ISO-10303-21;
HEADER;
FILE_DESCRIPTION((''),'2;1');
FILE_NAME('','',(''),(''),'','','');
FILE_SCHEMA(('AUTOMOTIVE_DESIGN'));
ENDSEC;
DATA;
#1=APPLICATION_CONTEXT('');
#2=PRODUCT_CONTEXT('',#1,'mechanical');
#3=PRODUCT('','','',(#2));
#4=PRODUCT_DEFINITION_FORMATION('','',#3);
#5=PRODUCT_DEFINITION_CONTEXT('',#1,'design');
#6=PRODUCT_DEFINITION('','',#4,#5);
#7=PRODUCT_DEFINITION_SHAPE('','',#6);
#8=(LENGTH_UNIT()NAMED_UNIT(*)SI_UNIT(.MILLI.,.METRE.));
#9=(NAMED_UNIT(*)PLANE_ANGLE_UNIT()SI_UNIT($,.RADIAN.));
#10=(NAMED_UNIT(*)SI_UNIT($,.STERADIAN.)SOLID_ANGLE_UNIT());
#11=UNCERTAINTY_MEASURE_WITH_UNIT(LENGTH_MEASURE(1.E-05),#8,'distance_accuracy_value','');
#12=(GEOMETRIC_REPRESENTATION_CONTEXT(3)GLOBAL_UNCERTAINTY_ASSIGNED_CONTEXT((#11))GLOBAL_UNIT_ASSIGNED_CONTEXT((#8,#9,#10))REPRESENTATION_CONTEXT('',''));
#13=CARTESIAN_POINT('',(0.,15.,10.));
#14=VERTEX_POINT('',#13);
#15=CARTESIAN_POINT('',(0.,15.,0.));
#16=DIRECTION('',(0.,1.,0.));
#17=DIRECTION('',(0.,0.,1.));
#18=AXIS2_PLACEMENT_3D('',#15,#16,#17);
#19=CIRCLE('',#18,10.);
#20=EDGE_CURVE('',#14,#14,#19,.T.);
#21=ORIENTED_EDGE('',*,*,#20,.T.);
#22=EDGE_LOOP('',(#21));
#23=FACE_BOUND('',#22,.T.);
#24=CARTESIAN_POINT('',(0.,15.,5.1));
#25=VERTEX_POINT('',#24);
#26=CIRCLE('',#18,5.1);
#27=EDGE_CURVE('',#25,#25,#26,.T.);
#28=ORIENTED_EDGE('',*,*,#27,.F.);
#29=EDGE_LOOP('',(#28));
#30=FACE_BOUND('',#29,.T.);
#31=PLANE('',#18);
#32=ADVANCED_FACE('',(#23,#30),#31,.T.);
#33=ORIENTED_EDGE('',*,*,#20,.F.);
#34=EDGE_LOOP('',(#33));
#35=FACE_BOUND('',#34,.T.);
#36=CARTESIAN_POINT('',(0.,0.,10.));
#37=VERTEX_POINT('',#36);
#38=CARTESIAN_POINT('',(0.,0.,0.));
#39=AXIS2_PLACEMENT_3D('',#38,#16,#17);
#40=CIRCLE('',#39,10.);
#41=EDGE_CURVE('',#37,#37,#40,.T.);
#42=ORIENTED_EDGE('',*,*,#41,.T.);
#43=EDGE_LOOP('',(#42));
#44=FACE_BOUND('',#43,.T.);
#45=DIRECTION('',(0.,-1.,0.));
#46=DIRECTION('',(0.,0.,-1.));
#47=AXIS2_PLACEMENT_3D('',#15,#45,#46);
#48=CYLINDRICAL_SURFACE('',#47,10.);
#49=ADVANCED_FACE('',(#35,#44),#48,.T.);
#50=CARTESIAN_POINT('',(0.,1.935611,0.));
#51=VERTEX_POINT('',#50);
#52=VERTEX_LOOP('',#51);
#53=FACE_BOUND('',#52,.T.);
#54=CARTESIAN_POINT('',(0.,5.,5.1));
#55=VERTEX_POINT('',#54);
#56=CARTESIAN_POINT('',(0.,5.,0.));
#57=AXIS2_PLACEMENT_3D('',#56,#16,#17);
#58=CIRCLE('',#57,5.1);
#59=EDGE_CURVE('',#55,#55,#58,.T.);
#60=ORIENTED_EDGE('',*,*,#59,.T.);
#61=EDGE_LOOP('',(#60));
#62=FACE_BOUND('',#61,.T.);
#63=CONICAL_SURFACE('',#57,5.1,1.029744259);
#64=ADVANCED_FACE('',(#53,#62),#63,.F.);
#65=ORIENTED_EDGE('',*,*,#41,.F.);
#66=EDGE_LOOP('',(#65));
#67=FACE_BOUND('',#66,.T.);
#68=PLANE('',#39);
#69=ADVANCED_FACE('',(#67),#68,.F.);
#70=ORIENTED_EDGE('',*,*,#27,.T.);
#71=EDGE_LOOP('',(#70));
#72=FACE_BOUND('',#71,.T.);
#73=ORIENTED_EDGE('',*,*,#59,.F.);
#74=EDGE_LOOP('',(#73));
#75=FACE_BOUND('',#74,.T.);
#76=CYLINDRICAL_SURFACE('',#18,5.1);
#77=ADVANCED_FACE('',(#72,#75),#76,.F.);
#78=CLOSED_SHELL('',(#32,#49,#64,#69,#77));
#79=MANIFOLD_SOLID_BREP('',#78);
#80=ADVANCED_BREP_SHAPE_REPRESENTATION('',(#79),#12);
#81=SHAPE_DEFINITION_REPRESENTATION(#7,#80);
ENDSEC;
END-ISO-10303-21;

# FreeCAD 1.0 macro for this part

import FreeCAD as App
import Part
import Sketcher

V = App.Vector
Q = App.Units.Quantity

doc = App.newDocument("Part")
body = doc.addObject("PartDesign::Body", "Body")

sketch1 = body.newObject("Sketcher::SketchObject", "Sketch")
sketch1.AttachmentSupport = (doc.getObject("XZ_Plane"), [""])
sketch1.MapMode = "FlatFace"
sketch1.addGeometry(Part.Circle(V(0, 0, 0), V(0, 0, 1), 10), False)
sketch1.addConstraint(Sketcher.Constraint("Coincident", 0, 3, -1, 1))
sketch1.addConstraint(Sketcher.Constraint("Diameter", 0, Q("20 mm")))
pad1 = body.newObject("PartDesign::Pad", "Pad")
pad1.Profile = sketch1
pad1.Length = 15
pad1.Reversed = True

sketch2 = body.newObject("Sketcher::SketchObject", "Sketch001")
sketch2.AttachmentSupport = (doc.getObject("XZ_Plane"), [""])
sketch2.MapMode = "FlatFace"
sketch2.AttachmentOffset = App.Placement(V(0, 0, -15), App.Rotation())
sketch2.addGeometry(Part.Circle(V(0, 0, 0), V(0, 0, 1), 5), False)
sketch2.addConstraint(Sketcher.Constraint("Coincident", 0, 3, -1, 1))
sketch2.addConstraint(Sketcher.Constraint("Diameter", 0, Q("10.2 mm")))
doc.recompute()
hole = body.newObject("PartDesign::Hole", "Hole")
hole.Profile = sketch2
hole.ThreadType = "None"
hole.Diameter = 10.2
hole.DepthType = "Dimension"
hole.Depth = 10
hole.DrillPoint = "Angled"
hole.DrillPointAngle = 118
hole.Reversed = True

doc.recompute()
